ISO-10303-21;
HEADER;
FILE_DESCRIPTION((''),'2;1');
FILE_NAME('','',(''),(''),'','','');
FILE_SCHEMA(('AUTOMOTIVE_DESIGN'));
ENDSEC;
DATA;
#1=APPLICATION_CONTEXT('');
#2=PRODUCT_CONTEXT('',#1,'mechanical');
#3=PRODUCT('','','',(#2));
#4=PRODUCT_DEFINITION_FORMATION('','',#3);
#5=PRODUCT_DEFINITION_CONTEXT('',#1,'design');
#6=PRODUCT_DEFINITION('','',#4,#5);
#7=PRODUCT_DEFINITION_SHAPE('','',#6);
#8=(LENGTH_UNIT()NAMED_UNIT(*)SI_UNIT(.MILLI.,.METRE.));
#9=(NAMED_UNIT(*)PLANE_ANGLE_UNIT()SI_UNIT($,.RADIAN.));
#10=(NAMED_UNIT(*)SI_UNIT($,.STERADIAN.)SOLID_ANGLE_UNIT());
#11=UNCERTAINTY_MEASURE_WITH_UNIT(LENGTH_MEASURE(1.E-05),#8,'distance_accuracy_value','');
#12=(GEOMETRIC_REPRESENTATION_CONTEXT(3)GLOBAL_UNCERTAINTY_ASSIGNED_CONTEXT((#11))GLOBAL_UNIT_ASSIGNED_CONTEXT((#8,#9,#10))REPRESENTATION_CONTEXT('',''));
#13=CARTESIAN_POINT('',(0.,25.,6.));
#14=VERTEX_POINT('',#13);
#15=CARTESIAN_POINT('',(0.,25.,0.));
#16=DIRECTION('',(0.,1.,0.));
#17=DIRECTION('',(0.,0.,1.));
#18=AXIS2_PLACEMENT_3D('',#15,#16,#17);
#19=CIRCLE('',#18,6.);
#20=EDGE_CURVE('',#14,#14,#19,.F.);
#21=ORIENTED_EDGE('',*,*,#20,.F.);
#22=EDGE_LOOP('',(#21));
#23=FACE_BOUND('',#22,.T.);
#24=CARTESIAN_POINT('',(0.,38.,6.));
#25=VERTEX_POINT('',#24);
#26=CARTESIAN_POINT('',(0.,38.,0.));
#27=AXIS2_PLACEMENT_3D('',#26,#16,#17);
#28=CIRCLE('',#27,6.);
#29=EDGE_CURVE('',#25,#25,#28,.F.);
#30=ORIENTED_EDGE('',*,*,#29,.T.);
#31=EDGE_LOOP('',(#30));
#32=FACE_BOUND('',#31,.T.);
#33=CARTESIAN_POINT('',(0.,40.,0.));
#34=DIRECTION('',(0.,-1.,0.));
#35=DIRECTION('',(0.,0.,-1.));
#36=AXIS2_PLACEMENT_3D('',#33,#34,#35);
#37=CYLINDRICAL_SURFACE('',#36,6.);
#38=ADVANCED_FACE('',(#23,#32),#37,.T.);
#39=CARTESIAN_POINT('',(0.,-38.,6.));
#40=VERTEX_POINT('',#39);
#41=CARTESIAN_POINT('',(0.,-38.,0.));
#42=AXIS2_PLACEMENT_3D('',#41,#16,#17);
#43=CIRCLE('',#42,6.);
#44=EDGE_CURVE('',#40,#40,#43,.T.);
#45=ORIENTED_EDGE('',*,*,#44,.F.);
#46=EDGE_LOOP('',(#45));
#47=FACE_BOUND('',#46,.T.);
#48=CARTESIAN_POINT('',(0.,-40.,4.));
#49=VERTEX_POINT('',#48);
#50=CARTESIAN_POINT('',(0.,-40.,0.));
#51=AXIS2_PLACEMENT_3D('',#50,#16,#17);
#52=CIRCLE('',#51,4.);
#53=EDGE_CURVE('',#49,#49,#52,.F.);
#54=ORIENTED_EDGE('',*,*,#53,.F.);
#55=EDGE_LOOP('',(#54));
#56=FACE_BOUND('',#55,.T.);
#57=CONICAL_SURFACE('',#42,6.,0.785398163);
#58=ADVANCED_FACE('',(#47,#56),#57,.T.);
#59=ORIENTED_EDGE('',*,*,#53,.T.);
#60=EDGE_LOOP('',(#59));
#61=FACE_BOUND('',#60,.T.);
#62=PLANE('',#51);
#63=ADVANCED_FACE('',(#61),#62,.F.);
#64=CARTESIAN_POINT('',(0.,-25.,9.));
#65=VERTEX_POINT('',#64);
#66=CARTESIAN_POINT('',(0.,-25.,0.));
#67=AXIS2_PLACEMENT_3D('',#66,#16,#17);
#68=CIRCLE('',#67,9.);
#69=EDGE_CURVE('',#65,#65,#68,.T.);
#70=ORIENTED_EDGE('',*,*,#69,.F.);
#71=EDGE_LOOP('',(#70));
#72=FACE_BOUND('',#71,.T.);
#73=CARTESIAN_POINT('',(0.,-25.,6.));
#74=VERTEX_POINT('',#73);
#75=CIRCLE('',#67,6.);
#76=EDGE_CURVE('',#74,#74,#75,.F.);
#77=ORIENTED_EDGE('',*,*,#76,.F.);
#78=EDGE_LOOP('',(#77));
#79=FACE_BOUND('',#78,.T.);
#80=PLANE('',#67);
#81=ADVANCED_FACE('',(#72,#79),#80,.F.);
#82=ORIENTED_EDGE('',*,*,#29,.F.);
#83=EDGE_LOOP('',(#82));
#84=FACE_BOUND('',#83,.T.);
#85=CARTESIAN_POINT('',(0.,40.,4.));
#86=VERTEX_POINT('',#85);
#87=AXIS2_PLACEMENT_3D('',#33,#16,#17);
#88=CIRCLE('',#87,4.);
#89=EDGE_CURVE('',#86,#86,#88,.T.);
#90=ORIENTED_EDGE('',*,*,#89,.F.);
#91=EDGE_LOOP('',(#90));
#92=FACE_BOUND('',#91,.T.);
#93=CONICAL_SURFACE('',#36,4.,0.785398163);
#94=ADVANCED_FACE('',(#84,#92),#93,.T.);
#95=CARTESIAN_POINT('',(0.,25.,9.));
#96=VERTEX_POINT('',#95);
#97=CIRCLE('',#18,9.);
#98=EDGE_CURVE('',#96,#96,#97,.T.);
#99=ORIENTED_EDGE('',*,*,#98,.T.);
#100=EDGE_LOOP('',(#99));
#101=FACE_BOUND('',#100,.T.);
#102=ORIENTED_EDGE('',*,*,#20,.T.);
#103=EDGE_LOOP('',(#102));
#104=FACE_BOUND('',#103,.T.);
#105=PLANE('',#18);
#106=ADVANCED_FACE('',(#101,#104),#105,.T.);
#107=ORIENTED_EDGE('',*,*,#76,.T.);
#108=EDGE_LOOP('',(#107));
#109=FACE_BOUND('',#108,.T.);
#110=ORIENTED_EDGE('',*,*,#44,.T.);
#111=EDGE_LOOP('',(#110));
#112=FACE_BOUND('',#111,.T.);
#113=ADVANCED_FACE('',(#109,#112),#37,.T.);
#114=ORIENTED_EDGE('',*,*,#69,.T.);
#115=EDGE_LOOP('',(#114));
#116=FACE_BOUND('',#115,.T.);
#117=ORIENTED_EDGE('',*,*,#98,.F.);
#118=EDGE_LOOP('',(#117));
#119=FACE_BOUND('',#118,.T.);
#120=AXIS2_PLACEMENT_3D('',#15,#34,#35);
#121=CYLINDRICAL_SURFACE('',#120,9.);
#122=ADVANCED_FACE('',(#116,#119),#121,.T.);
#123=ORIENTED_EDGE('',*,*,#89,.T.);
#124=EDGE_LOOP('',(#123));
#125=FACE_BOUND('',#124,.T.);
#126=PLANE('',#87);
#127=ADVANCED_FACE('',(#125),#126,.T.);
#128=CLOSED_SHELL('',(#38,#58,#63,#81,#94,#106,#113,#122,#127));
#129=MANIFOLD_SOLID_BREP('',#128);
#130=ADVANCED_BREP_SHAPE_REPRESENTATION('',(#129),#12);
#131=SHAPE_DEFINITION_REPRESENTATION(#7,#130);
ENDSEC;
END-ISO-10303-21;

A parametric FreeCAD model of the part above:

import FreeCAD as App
import Part
import Sketcher

V = App.Vector
Q = App.Units.Quantity


def edges_at(feature, points):
    """Names of the edges that pass closest to the given points."""
    edges = feature.Shape.Edges
    near = lambda p: min(range(len(edges)), key=lambda i: edges[i].distToShape(Part.Vertex(*p))[0])
    return sorted({f"Edge{near(p) + 1}" for p in points})

doc = App.newDocument("Part")
body = doc.addObject("PartDesign::Body", "Body")

sketch1 = body.newObject("Sketcher::SketchObject", "Sketch")
sketch1.AttachmentSupport = (doc.getObject("XZ_Plane"), [""])
sketch1.MapMode = "FlatFace"
sketch1.addGeometry(Part.Circle(V(0, 0, 0), V(0, 0, 1), 9), False)
sketch1.addConstraint(Sketcher.Constraint("Coincident", 0, 3, -1, 1))
sketch1.addConstraint(Sketcher.Constraint("Diameter", 0, Q("18 mm")))
pad1 = body.newObject("PartDesign::Pad", "Pad")
pad1.Profile = sketch1
pad1.Length = 50
pad1.Midplane = True

sketch2 = body.newObject("Sketcher::SketchObject", "Sketch001")
sketch2.AttachmentSupport = (doc.getObject("XZ_Plane"), [""])
sketch2.MapMode = "FlatFace"
sketch2.addGeometry(Part.Circle(V(0, 0, 0), V(0, 0, 1), 6), False)
sketch2.addConstraint(Sketcher.Constraint("Coincident", 0, 3, -1, 1))
sketch2.addConstraint(Sketcher.Constraint("Diameter", 0, Q("12 mm")))
pad2 = body.newObject("PartDesign::Pad", "Pad001")
pad2.Profile = sketch2
pad2.Length = 80
pad2.Midplane = True
doc.recompute()

chamfer = body.newObject("PartDesign::Chamfer", "Chamfer")
chamfer.Base = (pad2, edges_at(pad2, [(0, -40, -6), (0, 40, -6)]))
chamfer.Size = 2

doc.recompute()
